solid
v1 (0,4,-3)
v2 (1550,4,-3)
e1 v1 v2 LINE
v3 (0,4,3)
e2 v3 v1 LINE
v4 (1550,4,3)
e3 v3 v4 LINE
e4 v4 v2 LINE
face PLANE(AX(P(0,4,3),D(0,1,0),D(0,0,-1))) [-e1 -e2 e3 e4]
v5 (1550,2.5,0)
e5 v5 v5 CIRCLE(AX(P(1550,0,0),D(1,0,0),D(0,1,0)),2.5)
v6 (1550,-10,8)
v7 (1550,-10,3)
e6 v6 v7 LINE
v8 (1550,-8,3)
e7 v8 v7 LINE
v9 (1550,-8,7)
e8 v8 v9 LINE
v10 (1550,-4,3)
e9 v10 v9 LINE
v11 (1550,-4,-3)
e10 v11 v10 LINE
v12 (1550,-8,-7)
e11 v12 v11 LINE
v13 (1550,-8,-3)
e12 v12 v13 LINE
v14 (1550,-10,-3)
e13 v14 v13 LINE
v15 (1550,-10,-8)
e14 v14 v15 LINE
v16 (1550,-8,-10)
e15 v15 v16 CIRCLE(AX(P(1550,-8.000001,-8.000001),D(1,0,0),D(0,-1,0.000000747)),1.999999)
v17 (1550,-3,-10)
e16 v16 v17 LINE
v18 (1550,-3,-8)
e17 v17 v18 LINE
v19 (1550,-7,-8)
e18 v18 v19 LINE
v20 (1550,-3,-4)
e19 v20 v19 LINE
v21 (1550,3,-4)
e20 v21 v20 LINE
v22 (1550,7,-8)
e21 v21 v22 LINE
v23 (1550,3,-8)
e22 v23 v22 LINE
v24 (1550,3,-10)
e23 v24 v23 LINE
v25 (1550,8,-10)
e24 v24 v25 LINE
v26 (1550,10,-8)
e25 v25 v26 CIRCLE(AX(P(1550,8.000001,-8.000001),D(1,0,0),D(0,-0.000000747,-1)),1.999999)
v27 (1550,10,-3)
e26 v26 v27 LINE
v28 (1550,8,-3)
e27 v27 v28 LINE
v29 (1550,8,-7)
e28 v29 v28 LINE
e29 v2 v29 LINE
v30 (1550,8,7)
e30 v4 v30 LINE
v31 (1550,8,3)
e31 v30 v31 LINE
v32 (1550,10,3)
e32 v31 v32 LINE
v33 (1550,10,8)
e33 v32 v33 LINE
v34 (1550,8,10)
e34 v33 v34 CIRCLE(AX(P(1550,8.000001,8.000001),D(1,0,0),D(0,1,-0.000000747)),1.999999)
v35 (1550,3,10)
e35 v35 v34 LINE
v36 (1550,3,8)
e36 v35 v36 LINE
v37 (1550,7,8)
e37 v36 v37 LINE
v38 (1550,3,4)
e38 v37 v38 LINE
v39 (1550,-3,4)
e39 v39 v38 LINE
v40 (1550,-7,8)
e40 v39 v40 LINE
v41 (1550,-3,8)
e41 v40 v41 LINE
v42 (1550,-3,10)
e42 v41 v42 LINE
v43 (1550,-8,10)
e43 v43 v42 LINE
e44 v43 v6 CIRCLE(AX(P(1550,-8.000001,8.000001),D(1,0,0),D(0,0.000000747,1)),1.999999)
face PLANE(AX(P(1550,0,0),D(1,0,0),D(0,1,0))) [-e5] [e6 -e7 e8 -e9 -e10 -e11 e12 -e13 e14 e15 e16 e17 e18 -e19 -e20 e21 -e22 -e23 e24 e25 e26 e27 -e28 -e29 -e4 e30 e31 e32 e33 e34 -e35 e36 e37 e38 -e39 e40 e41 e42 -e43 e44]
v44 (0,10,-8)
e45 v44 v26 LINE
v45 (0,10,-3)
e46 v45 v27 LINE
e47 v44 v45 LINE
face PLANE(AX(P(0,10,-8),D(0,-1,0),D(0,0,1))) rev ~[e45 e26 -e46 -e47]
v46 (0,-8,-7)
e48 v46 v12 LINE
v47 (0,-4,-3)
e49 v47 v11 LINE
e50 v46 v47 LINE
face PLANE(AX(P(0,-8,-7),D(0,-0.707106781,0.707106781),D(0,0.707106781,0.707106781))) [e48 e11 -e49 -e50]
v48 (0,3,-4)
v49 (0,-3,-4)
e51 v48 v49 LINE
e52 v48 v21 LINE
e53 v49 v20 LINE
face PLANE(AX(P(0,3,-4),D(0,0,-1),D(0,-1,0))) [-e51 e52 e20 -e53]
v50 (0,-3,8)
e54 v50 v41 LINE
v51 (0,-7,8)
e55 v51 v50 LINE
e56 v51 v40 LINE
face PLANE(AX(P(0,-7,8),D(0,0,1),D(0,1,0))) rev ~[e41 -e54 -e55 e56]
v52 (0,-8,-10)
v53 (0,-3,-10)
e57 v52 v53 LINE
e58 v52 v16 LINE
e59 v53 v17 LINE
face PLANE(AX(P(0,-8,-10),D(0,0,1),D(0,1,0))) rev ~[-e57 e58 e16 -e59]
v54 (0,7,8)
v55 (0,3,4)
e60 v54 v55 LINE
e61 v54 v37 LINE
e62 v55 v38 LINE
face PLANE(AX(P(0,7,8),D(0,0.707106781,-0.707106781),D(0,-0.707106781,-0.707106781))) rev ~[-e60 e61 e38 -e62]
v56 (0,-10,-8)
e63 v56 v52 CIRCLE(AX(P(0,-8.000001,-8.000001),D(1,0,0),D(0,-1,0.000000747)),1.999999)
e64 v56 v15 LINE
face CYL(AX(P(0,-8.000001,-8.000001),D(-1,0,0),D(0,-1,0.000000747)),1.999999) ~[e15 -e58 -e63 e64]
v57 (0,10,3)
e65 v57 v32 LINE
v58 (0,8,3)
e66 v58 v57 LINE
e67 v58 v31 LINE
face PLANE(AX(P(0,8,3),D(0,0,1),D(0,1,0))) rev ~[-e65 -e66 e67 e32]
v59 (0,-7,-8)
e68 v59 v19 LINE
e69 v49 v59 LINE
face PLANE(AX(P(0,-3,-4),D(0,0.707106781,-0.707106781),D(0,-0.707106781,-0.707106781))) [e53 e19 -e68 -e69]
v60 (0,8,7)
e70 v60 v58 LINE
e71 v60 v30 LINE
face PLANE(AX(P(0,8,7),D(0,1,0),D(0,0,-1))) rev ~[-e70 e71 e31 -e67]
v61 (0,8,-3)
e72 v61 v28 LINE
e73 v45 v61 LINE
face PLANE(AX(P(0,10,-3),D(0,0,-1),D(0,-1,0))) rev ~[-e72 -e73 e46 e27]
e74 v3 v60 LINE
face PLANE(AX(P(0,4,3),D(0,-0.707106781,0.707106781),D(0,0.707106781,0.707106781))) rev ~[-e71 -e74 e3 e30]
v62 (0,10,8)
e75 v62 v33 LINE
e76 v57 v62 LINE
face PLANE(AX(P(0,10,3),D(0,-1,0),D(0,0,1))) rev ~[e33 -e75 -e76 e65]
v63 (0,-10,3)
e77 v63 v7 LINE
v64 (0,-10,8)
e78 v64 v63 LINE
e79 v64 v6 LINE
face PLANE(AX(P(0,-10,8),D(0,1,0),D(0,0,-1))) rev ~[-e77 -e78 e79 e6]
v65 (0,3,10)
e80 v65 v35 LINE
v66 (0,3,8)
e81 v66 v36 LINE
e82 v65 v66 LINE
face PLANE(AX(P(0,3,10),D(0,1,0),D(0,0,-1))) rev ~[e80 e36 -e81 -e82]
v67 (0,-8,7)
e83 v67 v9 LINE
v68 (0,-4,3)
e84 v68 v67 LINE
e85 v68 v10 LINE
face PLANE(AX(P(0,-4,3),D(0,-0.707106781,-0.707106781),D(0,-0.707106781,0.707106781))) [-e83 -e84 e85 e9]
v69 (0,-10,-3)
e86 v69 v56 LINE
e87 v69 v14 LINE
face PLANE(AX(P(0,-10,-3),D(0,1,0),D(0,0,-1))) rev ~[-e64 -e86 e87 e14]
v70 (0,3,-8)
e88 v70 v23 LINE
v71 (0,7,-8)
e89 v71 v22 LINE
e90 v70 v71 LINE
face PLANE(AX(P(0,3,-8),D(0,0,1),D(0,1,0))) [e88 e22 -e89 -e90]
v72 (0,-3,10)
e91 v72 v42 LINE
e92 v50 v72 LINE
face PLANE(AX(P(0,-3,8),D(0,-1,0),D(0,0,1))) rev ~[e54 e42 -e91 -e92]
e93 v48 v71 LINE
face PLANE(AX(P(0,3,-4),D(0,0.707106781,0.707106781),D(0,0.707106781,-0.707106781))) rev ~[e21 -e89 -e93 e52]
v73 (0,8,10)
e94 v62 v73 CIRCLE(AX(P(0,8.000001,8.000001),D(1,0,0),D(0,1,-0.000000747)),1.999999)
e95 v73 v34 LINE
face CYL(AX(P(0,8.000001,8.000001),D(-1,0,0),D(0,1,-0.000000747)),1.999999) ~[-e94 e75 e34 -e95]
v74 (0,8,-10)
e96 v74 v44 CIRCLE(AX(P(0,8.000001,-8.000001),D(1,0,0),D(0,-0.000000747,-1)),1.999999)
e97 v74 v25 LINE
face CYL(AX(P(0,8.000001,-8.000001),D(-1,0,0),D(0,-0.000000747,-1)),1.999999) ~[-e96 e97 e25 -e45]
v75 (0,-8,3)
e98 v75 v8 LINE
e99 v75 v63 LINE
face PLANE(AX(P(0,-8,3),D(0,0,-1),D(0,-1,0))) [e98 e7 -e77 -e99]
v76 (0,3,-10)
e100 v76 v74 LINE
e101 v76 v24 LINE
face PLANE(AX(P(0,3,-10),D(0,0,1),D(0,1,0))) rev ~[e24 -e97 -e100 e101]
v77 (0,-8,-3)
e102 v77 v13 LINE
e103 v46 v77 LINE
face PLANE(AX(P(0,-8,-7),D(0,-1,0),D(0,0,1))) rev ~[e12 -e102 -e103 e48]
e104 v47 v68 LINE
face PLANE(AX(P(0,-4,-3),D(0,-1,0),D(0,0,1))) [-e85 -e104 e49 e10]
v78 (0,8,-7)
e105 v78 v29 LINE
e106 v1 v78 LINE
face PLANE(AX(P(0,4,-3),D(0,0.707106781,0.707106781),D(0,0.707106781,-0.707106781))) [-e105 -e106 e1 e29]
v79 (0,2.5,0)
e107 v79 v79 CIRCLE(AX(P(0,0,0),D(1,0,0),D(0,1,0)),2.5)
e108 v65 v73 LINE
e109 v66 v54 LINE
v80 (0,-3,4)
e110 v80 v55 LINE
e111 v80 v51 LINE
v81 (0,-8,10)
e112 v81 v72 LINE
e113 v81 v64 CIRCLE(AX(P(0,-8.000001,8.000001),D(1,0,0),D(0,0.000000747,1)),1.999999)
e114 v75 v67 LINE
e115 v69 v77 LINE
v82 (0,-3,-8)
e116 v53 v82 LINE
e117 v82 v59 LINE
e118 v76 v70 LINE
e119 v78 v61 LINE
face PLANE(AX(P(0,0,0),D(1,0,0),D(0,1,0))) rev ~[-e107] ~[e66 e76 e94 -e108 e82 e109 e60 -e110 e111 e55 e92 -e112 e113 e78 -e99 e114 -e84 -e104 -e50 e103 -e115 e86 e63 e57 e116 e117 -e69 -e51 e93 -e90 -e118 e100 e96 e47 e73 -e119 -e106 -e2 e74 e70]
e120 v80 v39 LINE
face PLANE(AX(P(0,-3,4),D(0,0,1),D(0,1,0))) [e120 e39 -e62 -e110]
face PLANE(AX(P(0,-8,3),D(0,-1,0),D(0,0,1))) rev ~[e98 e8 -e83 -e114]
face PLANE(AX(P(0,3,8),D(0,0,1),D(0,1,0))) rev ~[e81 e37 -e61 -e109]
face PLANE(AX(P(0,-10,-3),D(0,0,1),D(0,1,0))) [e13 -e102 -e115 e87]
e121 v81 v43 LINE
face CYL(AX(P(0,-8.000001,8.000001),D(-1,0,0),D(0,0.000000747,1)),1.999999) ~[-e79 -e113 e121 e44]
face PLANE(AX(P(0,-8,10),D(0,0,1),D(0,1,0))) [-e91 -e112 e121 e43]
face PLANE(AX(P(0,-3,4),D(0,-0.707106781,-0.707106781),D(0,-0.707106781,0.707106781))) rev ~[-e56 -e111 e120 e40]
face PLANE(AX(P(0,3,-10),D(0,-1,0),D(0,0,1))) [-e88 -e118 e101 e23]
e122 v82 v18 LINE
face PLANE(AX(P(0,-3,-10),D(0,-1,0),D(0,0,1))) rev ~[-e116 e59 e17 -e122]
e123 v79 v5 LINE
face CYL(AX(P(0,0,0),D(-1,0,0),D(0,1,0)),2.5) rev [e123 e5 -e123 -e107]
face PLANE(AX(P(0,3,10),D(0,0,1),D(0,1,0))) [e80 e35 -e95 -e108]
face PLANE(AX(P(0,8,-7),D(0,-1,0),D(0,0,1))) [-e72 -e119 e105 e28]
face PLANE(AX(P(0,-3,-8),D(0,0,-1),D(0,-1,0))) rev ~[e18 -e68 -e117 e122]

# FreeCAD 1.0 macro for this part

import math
import FreeCAD as App
import Part
import Sketcher

V = App.Vector

doc = App.newDocument("Part")
params = doc.addObject("Spreadsheet::Sheet", "Params")
for row, (alias, value) in enumerate([
    ("sketch1_diameter", "5 mm"),
    ("sketch1_radius", "1.999999 mm"),
    ("sketch1_width", "5 mm"),
    ("sketch1_width2", "4 mm"),
    ("sketch1_width3", "6 mm"),
    ("pad1_length", "1550 mm"),
], start=1):
    params.set(f"A{row}", alias)
    params.set(f"B{row}", "=" + value)
    params.setAlias(f"B{row}", alias)

body = doc.addObject("PartDesign::Body", "Body")

sketch1 = body.newObject("Sketcher::SketchObject", "Sketch")
sketch1.AttachmentSupport = (doc.getObject("YZ_Plane"), [""])
sketch1.MapMode = "FlatFace"
sketch1.addGeometry([
    Part.ArcOfCircle(Part.Circle(V(-8, 8, 0), V(0, 0, 1), 2), math.radians(90), math.radians(180)),
    Part.LineSegment(V(-10, 8, 0), V(-10, 3, 0)),
    Part.LineSegment(V(-10, 3, 0), V(-8, 3, 0)),
    Part.LineSegment(V(-8, 3, 0), V(-8, 7, 0)),
    Part.LineSegment(V(-8, 7, 0), V(-4, 3, 0)),
    Part.LineSegment(V(-4, 3, 0), V(-4, -3, 0)),
    Part.LineSegment(V(-4, -3, 0), V(-8, -7, 0)),
    Part.LineSegment(V(-8, -7, 0), V(-8, -3, 0)),
    Part.LineSegment(V(-8, -3, 0), V(-10, -3, 0)),
    Part.LineSegment(V(-10, -3, 0), V(-10, -8, 0)),
    Part.ArcOfCircle(Part.Circle(V(-8, -8, 0), V(0, 0, 1), 2), math.radians(180), math.radians(270)),
    Part.LineSegment(V(-8, -10, 0), V(-3, -10, 0)),
    Part.LineSegment(V(-3, -10, 0), V(-3, -8, 0)),
    Part.LineSegment(V(-3, -8, 0), V(-7, -8, 0)),
    Part.LineSegment(V(-7, -8, 0), V(-3, -4, 0)),
    Part.LineSegment(V(-3, -4, 0), V(3, -4, 0)),
    Part.LineSegment(V(3, -4, 0), V(7, -8, 0)),
    Part.LineSegment(V(7, -8, 0), V(3, -8, 0)),
    Part.LineSegment(V(3, -8, 0), V(3, -10, 0)),
    Part.LineSegment(V(3, -10, 0), V(8, -10, 0)),
    Part.ArcOfCircle(Part.Circle(V(8, -8, 0), V(0, 0, 1), 2), math.radians(-90), math.radians(0)),
    Part.LineSegment(V(10, -8, 0), V(10, -3, 0)),
    Part.LineSegment(V(10, -3, 0), V(8, -3, 0)),
    Part.LineSegment(V(8, -3, 0), V(8, -7, 0)),
    Part.LineSegment(V(8, -7, 0), V(4, -3, 0)),
    Part.LineSegment(V(4, -3, 0), V(4, 3, 0)),
    Part.LineSegment(V(4, 3, 0), V(8, 7, 0)),
    Part.LineSegment(V(8, 7, 0), V(8, 3, 0)),
    Part.LineSegment(V(8, 3, 0), V(10, 3, 0)),
    Part.LineSegment(V(10, 3, 0), V(10, 8, 0)),
    Part.ArcOfCircle(Part.Circle(V(8, 8, 0), V(0, 0, 1), 2), math.radians(0), math.radians(90)),
    Part.LineSegment(V(8, 10, 0), V(3, 10, 0)),
    Part.LineSegment(V(3, 10, 0), V(3, 8, 0)),
    Part.LineSegment(V(3, 8, 0), V(7, 8, 0)),
    Part.LineSegment(V(7, 8, 0), V(3, 4, 0)),
    Part.LineSegment(V(3, 4, 0), V(-3, 4, 0)),
    Part.LineSegment(V(-3, 4, 0), V(-7, 8, 0)),
    Part.LineSegment(V(-7, 8, 0), V(-3, 8, 0)),
    Part.LineSegment(V(-3, 8, 0), V(-3, 10, 0)),
    Part.LineSegment(V(-3, 10, 0), V(-8, 10, 0)),
    Part.Circle(V(0, 0, 0), V(0, 0, 1), 2.5),
], False)
sketch1.addConstraint([
    Sketcher.Constraint("Tangent", 0, 2, 1, 1),
    Sketcher.Constraint("Coincident", 1, 2, 2, 1),
    Sketcher.Constraint("Coincident", 2, 2, 3, 1),
    Sketcher.Constraint("Coincident", 3, 2, 4, 1),
    Sketcher.Constraint("Coincident", 4, 2, 5, 1),
    Sketcher.Constraint("Coincident", 5, 2, 6, 1),
    Sketcher.Constraint("Coincident", 6, 2, 7, 1),
    Sketcher.Constraint("Coincident", 7, 2, 8, 1),
    Sketcher.Constraint("Coincident", 8, 2, 9, 1),
    Sketcher.Constraint("Tangent", 9, 2, 10, 1),
    Sketcher.Constraint("Tangent", 10, 2, 11, 1),
    Sketcher.Constraint("Coincident", 11, 2, 12, 1),
    Sketcher.Constraint("Coincident", 12, 2, 13, 1),
    Sketcher.Constraint("Coincident", 13, 2, 14, 1),
    Sketcher.Constraint("Coincident", 14, 2, 15, 1),
    Sketcher.Constraint("Coincident", 15, 2, 16, 1),
    Sketcher.Constraint("Coincident", 16, 2, 17, 1),
    Sketcher.Constraint("Coincident", 17, 2, 18, 1),
    Sketcher.Constraint("Coincident", 18, 2, 19, 1),
    Sketcher.Constraint("Tangent", 19, 2, 20, 1),
    Sketcher.Constraint("Tangent", 20, 2, 21, 1),
    Sketcher.Constraint("Coincident", 21, 2, 22, 1),
    Sketcher.Constraint("Coincident", 22, 2, 23, 1),
    Sketcher.Constraint("Coincident", 23, 2, 24, 1),
    Sketcher.Constraint("Coincident", 24, 2, 25, 1),
    Sketcher.Constraint("Coincident", 25, 2, 26, 1),
    Sketcher.Constraint("Coincident", 26, 2, 27, 1),
    Sketcher.Constraint("Coincident", 27, 2, 28, 1),
    Sketcher.Constraint("Coincident", 28, 2, 29, 1),
    Sketcher.Constraint("Tangent", 29, 2, 30, 1),
    Sketcher.Constraint("Tangent", 30, 2, 31, 1),
    Sketcher.Constraint("Coincident", 31, 2, 32, 1),
    Sketcher.Constraint("Coincident", 32, 2, 33, 1),
    Sketcher.Constraint("Coincident", 33, 2, 34, 1),
    Sketcher.Constraint("Coincident", 34, 2, 35, 1),
    Sketcher.Constraint("Coincident", 35, 2, 36, 1),
    Sketcher.Constraint("Coincident", 36, 2, 37, 1),
    Sketcher.Constraint("Coincident", 37, 2, 38, 1),
    Sketcher.Constraint("Coincident", 38, 2, 39, 1),
    Sketcher.Constraint("Tangent", 39, 2, 0, 1),
    Sketcher.Constraint("Vertical", 1),
    Sketcher.Constraint("Horizontal", 2),
    Sketcher.Constraint("Vertical", 3),
    Sketcher.Constraint("Vertical", 5),
    Sketcher.Constraint("Vertical", 7),
    Sketcher.Constraint("Horizontal", 8),
    Sketcher.Constraint("Vertical", 9),
    Sketcher.Constraint("Horizontal", 11),
    Sketcher.Constraint("Vertical", 12),
    Sketcher.Constraint("Horizontal", 13),
    Sketcher.Constraint("Horizontal", 15),
    Sketcher.Constraint("Horizontal", 17),
    Sketcher.Constraint("Vertical", 18),
    Sketcher.Constraint("Horizontal", 19),
    Sketcher.Constraint("Vertical", 21),
    Sketcher.Constraint("Horizontal", 22),
    Sketcher.Constraint("Vertical", 23),
    Sketcher.Constraint("Vertical", 25),
    Sketcher.Constraint("Vertical", 27),
    Sketcher.Constraint("Horizontal", 28),
    Sketcher.Constraint("Vertical", 29),
    Sketcher.Constraint("Horizontal", 31),
    Sketcher.Constraint("Vertical", 32),
    Sketcher.Constraint("Horizontal", 33),
    Sketcher.Constraint("Horizontal", 35),
    Sketcher.Constraint("Horizontal", 37),
    Sketcher.Constraint("Vertical", 38),
    Sketcher.Constraint("Horizontal", 39),
    Sketcher.Constraint("Coincident", 40, 3, -1, 1),
    Sketcher.Constraint("Equal", 0, 10),
    Sketcher.Constraint("Equal", 10, 20),
    Sketcher.Constraint("Equal", 20, 30),
    Sketcher.Constraint("Symmetric", 0, 3, 20, 3, -1, 1),
    Sketcher.Constraint("Symmetric", 10, 3, 30, 3, -1, 1),
    Sketcher.Constraint("Symmetric", 2, 2, 22, 2, -1, 1),
    Sketcher.Constraint("Symmetric", 4, 2, 24, 2, -1, 1),
    Sketcher.Constraint("Symmetric", 6, 2, 26, 2, -1, 1),
    Sketcher.Constraint("Symmetric", 12, 2, 32, 2, -1, 1),
    Sketcher.Constraint("Symmetric", 14, 2, 34, 2, -1, 1),
    Sketcher.Constraint("Symmetric", 16, 2, 36, 2, -1, 1),
    Sketcher.Constraint("Symmetric", 10, 3, 20, 3, -2),
    Sketcher.Constraint("Symmetric", 13, 2, 16, 2, -2),
    Sketcher.Constraint("Symmetric", 7, 2, 22, 2, -2),
    Sketcher.Constraint("Perpendicular", 4, 6),
    Sketcher.Constraint("Parallel", 6, 14),
    Sketcher.Constraint("Perpendicular", 14, 16),
    Sketcher.Constraint("Parallel", 16, 24),
    Sketcher.Constraint("Perpendicular", 24, 26),
    Sketcher.Constraint("Parallel", 26, 34),
    Sketcher.Constraint("Perpendicular", 34, 36),
    Sketcher.Constraint("Horizontal", 2, 2, 4, 2),
    Sketcher.Constraint("Horizontal", 5, 2, 7, 2),
    Sketcher.Constraint("Horizontal", 9, 2, 12, 2),
    Sketcher.Constraint("Horizontal", 6, 2, 23, 2),
    Sketcher.Constraint("Horizontal", 25, 2, 27, 2),
    Sketcher.Constraint("Vertical", 10, 3, 2, 2),
    Sketcher.Constraint("Vertical", 12, 2, 14, 2),
    Sketcher.Constraint("Vertical", 15, 2, 17, 2),
    Sketcher.Constraint("Vertical", 35, 2, 37, 2),
    Sketcher.Constraint("Equal", 39, 1),
    Sketcher.Constraint("Equal", 37, 3),
    Sketcher.Constraint("Equal", 35, 5),
    Sketcher.Constraint("Diameter", 40, 5.0),
    Sketcher.Constraint("Radius", 0, 1.999999),
    Sketcher.Constraint("DistanceX", 11, 1, 11, 2, 5.0),
    Sketcher.Constraint("DistanceX", 13, 2, 13, 1, 4.0),
    Sketcher.Constraint("DistanceX", 15, 1, 15, 2, 6.0),
])
sketch1.setExpression("Constraints[102]", "Params.sketch1_diameter")
sketch1.setExpression("Constraints[103]", "Params.sketch1_radius")
sketch1.setExpression("Constraints[104]", "Params.sketch1_width")
sketch1.setExpression("Constraints[105]", "Params.sketch1_width2")
sketch1.setExpression("Constraints[106]", "Params.sketch1_width3")
pad1 = body.newObject("PartDesign::Pad", "Pad")
pad1.Profile = sketch1
pad1.setExpression("Length", "Params.pad1_length")

doc.recompute()
